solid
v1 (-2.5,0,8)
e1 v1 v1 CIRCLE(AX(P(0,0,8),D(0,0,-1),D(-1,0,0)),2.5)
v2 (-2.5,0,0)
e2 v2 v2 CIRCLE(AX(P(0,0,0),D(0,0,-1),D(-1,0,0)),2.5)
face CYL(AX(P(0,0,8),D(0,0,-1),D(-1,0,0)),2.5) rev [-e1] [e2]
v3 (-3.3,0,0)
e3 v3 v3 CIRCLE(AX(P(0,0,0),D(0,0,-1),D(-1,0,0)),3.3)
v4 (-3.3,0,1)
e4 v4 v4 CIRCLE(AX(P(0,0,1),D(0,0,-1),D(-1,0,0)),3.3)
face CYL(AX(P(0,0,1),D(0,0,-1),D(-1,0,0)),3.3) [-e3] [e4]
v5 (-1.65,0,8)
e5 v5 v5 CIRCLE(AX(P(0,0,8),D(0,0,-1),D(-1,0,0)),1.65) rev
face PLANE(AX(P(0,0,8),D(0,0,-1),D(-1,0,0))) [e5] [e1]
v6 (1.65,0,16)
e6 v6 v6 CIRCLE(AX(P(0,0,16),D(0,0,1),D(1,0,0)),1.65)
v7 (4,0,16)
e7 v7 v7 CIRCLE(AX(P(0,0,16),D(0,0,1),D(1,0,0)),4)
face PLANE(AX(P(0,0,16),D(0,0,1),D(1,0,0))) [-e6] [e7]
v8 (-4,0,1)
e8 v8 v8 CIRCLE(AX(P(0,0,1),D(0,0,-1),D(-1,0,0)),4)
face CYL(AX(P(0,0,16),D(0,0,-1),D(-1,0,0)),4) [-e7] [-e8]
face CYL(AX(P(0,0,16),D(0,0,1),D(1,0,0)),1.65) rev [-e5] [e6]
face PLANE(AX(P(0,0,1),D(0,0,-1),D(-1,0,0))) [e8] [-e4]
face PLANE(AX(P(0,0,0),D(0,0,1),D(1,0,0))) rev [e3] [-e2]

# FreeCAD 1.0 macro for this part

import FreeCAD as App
import Part
import Sketcher

doc = App.newDocument("Part")
body = doc.addObject("PartDesign::Body", "Body")

sketch1 = body.newObject("Sketcher::SketchObject", "Sketch")
sketch1.AttachmentSupport = (doc.getObject("XY_Plane"), [""])
sketch1.MapMode = "FlatFace"
sketch1.addGeometry(Part.Circle(App.Vector(0, 0, 0), App.Vector(0, 0, 1), 4), False)
sketch1.addConstraint([
    Sketcher.Constraint("Coincident", 0, 3, -1, 1),
    Sketcher.Constraint("Diameter", 0, 8.0),
])
pad1 = body.newObject("PartDesign::Pad", "Pad")
pad1.Profile = sketch1
pad1.Length = 16

sketch2 = body.newObject("Sketcher::SketchObject", "Sketch001")
sketch2.AttachmentSupport = (doc.getObject("XY_Plane"), [""])
sketch2.MapMode = "FlatFace"
sketch2.AttachmentOffset = App.Placement(App.Vector(0, 0, 16), App.Rotation())
sketch2.addGeometry(Part.Circle(App.Vector(0, 0, 0), App.Vector(0, 0, 1), 1.6), False)
sketch2.addConstraint([
    Sketcher.Constraint("Coincident", 0, 3, -1, 1),
    Sketcher.Constraint("Diameter", 0, 3.3),
])
doc.recompute()
hole = body.newObject("PartDesign::Hole", "Hole")
hole.Profile = sketch2
hole.ThreadType = "None"
hole.Diameter = 3.3
hole.DepthType = "Dimension"
hole.Depth = 8
hole.DrillPoint = "Angled"
hole.DrillPointAngle = 118

sketch3 = body.newObject("Sketcher::SketchObject", "Sketch002")
sketch3.AttachmentSupport = (doc.getObject("XY_Plane"), [""])
sketch3.MapMode = "FlatFace"
sketch3.addGeometry(Part.Circle(App.Vector(0, 0, 0), App.Vector(0, 0, 1), 2.5), False)
sketch3.addConstraint([
    Sketcher.Constraint("Coincident", 0, 3, -1, 1),
    Sketcher.Constraint("Diameter", 0, 5.0),
])
pocket1 = body.newObject("PartDesign::Pocket", "Pocket")
pocket1.Profile = sketch3
pocket1.Length = 8
pocket1.Reversed = True

sketch4 = body.newObject("Sketcher::SketchObject", "Sketch003")
sketch4.AttachmentSupport = (doc.getObject("XY_Plane"), [""])
sketch4.MapMode = "FlatFace"
sketch4.addGeometry([
    Part.LineSegment(App.Vector(7, 7, 0), App.Vector(7, -7, 0)),
    Part.LineSegment(App.Vector(7, -7, 0), App.Vector(-7, -7, 0)),
    Part.LineSegment(App.Vector(-7, -7, 0), App.Vector(-7, 7, 0)),
    Part.LineSegment(App.Vector(-7, 7, 0), App.Vector(7, 7, 0)),
    Part.Circle(App.Vector(0, 0, 0), App.Vector(0, 0, 1), 3.3),
], False)
sketch4.addConstraint([
    Sketcher.Constraint("Coincident", 0, 2, 1, 1),
    Sketcher.Constraint("Coincident", 1, 2, 2, 1),
    Sketcher.Constraint("Coincident", 2, 2, 3, 1),
    Sketcher.Constraint("Coincident", 3, 2, 0, 1),
    Sketcher.Constraint("Vertical", 0),
    Sketcher.Constraint("Horizontal", 1),
    Sketcher.Constraint("Vertical", 2),
    Sketcher.Constraint("Horizontal", 3),
    Sketcher.Constraint("Coincident", 4, 3, -1, 1),
    Sketcher.Constraint("Symmetric", 0, 2, 2, 2, -1, 1),
    Sketcher.Constraint("Equal", 3, 0),
    Sketcher.Constraint("Diameter", 4, 6.6),
    Sketcher.Constraint("DistanceX", 1, 2, 1, 1, 13.92),
])
pocket2 = body.newObject("PartDesign::Pocket", "Pocket001")
pocket2.Profile = sketch4
pocket2.Length = 1
pocket2.Reversed = True

doc.recompute()
